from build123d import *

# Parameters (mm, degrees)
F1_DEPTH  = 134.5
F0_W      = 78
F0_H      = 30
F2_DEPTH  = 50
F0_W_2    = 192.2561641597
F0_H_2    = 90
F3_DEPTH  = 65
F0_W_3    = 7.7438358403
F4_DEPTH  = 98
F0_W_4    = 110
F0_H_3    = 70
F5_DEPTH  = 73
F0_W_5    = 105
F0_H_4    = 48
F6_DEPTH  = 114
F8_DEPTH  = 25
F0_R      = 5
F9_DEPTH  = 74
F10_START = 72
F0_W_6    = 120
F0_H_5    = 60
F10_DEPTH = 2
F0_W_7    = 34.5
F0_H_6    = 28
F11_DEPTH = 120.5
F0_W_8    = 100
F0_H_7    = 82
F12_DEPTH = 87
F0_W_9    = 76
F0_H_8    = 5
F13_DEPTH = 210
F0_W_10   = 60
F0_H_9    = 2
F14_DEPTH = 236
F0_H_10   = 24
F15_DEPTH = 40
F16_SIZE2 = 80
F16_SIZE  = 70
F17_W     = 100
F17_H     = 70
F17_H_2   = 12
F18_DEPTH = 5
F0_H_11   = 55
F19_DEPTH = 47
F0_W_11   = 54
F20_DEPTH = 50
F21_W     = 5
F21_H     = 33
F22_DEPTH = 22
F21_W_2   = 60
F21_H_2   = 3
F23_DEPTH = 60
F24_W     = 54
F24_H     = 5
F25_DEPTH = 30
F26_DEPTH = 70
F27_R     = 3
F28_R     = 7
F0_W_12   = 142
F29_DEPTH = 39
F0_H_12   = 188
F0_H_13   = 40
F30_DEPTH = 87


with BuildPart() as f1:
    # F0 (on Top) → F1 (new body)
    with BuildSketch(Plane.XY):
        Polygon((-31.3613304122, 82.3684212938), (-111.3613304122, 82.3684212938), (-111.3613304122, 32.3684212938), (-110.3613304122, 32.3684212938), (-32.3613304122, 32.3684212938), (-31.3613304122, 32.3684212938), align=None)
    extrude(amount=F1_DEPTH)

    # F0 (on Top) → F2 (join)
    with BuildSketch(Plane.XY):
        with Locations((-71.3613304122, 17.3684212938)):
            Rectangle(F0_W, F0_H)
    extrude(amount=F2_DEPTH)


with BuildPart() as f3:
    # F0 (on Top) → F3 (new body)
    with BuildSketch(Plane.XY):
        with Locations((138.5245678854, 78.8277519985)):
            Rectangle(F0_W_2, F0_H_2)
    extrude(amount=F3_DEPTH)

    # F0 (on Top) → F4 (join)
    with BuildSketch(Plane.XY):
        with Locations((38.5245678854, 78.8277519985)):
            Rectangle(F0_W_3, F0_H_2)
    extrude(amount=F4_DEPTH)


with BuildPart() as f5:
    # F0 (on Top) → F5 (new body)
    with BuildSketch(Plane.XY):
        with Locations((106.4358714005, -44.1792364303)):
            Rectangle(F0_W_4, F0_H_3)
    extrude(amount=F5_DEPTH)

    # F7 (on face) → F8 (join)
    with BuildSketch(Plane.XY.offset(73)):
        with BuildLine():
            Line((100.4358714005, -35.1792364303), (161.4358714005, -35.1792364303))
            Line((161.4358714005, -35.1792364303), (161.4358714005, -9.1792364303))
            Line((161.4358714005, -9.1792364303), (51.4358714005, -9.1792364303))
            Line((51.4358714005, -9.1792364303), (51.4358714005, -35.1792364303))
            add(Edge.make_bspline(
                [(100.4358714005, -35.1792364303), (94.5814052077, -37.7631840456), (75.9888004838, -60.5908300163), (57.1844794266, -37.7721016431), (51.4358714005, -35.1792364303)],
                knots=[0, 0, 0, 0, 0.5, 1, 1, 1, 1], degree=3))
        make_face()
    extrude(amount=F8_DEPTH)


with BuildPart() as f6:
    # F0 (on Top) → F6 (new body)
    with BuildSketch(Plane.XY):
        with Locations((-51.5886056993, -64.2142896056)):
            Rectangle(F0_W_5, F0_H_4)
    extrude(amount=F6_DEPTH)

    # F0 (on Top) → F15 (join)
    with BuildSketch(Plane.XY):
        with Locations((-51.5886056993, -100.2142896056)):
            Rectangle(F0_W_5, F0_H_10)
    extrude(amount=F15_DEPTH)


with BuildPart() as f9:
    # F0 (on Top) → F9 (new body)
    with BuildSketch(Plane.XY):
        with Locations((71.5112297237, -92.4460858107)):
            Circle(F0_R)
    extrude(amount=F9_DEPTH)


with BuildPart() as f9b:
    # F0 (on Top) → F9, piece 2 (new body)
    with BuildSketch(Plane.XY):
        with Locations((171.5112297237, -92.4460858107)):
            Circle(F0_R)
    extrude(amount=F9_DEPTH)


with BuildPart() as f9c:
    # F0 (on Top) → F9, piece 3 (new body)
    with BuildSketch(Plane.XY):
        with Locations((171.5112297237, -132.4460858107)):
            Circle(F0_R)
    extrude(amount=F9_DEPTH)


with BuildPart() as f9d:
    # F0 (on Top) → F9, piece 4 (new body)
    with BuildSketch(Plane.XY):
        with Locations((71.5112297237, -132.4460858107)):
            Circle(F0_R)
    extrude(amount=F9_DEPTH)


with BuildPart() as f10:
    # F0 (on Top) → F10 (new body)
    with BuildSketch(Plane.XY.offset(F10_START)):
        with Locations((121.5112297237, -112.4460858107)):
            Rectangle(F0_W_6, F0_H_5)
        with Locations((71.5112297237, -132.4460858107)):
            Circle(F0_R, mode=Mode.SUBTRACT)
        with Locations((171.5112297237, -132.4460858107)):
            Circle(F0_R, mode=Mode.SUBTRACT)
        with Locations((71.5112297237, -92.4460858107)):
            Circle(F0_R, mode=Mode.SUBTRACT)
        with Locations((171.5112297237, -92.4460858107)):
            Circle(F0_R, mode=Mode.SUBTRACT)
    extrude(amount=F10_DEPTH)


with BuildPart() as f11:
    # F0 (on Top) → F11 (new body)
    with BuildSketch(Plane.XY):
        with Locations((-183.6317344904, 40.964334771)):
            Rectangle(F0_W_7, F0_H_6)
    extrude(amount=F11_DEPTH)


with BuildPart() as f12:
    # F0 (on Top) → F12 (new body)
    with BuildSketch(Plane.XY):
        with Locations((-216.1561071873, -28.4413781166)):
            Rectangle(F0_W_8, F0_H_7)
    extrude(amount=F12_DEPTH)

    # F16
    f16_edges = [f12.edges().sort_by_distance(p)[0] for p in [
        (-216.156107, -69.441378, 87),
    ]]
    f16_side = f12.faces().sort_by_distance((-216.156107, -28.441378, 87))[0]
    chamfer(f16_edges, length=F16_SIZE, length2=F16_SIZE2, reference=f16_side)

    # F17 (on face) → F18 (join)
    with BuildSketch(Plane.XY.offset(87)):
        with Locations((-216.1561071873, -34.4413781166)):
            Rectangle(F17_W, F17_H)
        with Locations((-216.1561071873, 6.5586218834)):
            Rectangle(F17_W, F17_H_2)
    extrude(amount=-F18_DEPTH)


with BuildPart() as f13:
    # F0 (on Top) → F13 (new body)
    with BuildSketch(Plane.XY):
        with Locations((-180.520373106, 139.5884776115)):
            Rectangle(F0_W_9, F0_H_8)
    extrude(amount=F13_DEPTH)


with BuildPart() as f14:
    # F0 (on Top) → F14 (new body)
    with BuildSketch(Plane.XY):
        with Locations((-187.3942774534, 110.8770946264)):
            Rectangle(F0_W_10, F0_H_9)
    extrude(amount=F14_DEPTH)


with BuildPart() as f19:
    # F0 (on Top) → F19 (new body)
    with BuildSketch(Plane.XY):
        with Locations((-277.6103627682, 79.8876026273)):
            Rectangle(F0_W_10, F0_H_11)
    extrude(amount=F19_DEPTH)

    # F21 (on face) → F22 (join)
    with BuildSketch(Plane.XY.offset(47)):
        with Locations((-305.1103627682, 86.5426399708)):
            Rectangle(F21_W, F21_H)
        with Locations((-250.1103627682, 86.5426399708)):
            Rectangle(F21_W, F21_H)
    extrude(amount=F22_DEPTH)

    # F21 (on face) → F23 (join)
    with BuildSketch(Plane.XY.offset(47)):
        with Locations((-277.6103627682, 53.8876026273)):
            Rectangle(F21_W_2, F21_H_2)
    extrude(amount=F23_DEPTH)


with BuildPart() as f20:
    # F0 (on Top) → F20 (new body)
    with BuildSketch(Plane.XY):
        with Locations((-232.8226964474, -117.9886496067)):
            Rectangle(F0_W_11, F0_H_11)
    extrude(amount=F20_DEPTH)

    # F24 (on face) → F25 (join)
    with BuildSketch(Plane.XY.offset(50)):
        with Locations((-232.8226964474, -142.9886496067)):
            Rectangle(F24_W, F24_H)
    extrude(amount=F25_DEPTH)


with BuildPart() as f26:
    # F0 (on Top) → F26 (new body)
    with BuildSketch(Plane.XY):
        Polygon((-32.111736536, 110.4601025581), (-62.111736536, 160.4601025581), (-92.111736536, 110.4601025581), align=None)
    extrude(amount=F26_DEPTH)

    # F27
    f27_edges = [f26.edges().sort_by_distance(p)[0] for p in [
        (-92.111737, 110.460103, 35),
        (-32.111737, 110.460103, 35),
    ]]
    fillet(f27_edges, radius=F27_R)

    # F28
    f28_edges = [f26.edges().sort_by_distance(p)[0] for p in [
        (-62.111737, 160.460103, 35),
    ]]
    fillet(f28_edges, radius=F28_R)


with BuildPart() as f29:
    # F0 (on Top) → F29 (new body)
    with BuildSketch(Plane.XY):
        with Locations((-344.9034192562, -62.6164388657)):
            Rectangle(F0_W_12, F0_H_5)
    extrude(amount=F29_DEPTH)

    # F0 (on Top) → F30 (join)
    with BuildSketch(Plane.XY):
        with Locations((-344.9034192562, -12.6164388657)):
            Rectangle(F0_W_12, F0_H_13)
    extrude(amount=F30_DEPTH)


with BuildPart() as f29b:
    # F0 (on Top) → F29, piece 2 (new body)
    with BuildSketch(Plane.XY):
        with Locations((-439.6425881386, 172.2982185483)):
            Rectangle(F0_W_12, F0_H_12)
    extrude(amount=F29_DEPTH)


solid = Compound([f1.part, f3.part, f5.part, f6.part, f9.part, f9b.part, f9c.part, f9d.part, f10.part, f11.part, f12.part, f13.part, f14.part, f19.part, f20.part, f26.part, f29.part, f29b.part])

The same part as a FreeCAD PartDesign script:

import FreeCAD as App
import Part
import Sketcher

V = App.Vector


def edges_at(feature, points):
    """Names of the edges that pass closest to the given points."""
    edges = feature.Shape.Edges
    near = lambda p: min(range(len(edges)), key=lambda i: edges[i].distToShape(Part.Vertex(*p))[0])
    return sorted({f"Edge{near(p) + 1}" for p in points})

doc = App.newDocument("Part")
body = doc.addObject("PartDesign::Body", "Body")

# Sketch on XY plane
sketch1 = body.newObject("Sketcher::SketchObject", "Sketch")
sketch1.AttachmentSupport = (doc.getObject("XY_Plane"), [""])
sketch1.MapMode = "FlatFace"
sketch1.addGeometry(Part.LineSegment(V(-31, 82, 0), V(-111, 82, 0)), False)
sketch1.addGeometry(Part.LineSegment(V(-111, 82, 0), V(-111, 32, 0)), False)
sketch1.addGeometry(Part.LineSegment(V(-111, 32, 0), V(-31, 32, 0)), False)
sketch1.addGeometry(Part.LineSegment(V(-31, 32, 0), V(-31, 82, 0)), False)
sketch1.addConstraint(Sketcher.Constraint("Coincident", 0, 2, 1, 1))
sketch1.addConstraint(Sketcher.Constraint("Coincident", 1, 2, 2, 1))
sketch1.addConstraint(Sketcher.Constraint("Coincident", 2, 2, 3, 1))
sketch1.addConstraint(Sketcher.Constraint("Coincident", 3, 2, 0, 1))
sketch1.addConstraint(Sketcher.Constraint("Horizontal", 0))
sketch1.addConstraint(Sketcher.Constraint("Vertical", 1))
sketch1.addConstraint(Sketcher.Constraint("Horizontal", 2))
sketch1.addConstraint(Sketcher.Constraint("Vertical", 3))
sketch1.addConstraint(Sketcher.Constraint("DistanceX", 0, 2, 0, 1, 80.0))
sketch1.addConstraint(Sketcher.Constraint("DistanceY", 1, 2, 1, 1, 50.0))
sketch1.addConstraint(Sketcher.Constraint("DistanceX", 0, 2, -1, 1, 111.36133))
sketch1.addConstraint(Sketcher.Constraint("DistanceY", -1, 1, 0, 2, 82.368421))
pad1 = body.newObject("PartDesign::Pad", "Pad")
pad1.Profile = sketch1
pad1.Length = 134.5

# Sketch on XY plane
sketch2 = body.newObject("Sketcher::SketchObject", "Sketch001")
sketch2.AttachmentSupport = (doc.getObject("XY_Plane"), [""])
sketch2.MapMode = "FlatFace"
sketch2.addGeometry(Part.LineSegment(V(-110, 32, 0), V(-110, 2, 0)), False)
sketch2.addGeometry(Part.LineSegment(V(-110, 2, 0), V(-32, 2, 0)), False)
sketch2.addGeometry(Part.LineSegment(V(-32, 2, 0), V(-32, 32, 0)), False)
sketch2.addGeometry(Part.LineSegment(V(-32, 32, 0), V(-110, 32, 0)), False)
sketch2.addConstraint(Sketcher.Constraint("Coincident", 0, 2, 1, 1))
sketch2.addConstraint(Sketcher.Constraint("Coincident", 1, 2, 2, 1))
sketch2.addConstraint(Sketcher.Constraint("Coincident", 2, 2, 3, 1))
sketch2.addConstraint(Sketcher.Constraint("Coincident", 3, 2, 0, 1))
sketch2.addConstraint(Sketcher.Constraint("Vertical", 0))
sketch2.addConstraint(Sketcher.Constraint("Horizontal", 1))
sketch2.addConstraint(Sketcher.Constraint("Vertical", 2))
sketch2.addConstraint(Sketcher.Constraint("Horizontal", 3))
sketch2.addConstraint(Sketcher.Constraint("DistanceX", 1, 1, 1, 2, 78.0))
sketch2.addConstraint(Sketcher.Constraint("DistanceY", 0, 2, 0, 1, 30.0))
sketch2.addConstraint(Sketcher.Constraint("DistanceX", 0, 2, -1, 1, 110.36133))
sketch2.addConstraint(Sketcher.Constraint("DistanceY", -1, 1, 0, 2, 2.368421))
pad2 = body.newObject("PartDesign::Pad", "Pad001")
pad2.Profile = sketch2
pad2.Length = 50
body2 = doc.addObject("PartDesign::Body", "Body001")

# Sketch on XY plane
sketch3 = body2.newObject("Sketcher::SketchObject", "Sketch002")
sketch3.AttachmentSupport = (doc.getObject("XY_Plane001"), [""])
sketch3.MapMode = "FlatFace"
sketch3.addGeometry(Part.LineSegment(V(42, 124, 0), V(42, 34, 0)), False)
sketch3.addGeometry(Part.LineSegment(V(42, 34, 0), V(235, 34, 0)), False)
sketch3.addGeometry(Part.LineSegment(V(235, 34, 0), V(235, 124, 0)), False)
sketch3.addGeometry(Part.LineSegment(V(235, 124, 0), V(42, 124, 0)), False)
sketch3.addConstraint(Sketcher.Constraint("Coincident", 0, 2, 1, 1))
sketch3.addConstraint(Sketcher.Constraint("Coincident", 1, 2, 2, 1))
sketch3.addConstraint(Sketcher.Constraint("Coincident", 2, 2, 3, 1))
sketch3.addConstraint(Sketcher.Constraint("Coincident", 3, 2, 0, 1))
sketch3.addConstraint(Sketcher.Constraint("Vertical", 0))
sketch3.addConstraint(Sketcher.Constraint("Horizontal", 1))
sketch3.addConstraint(Sketcher.Constraint("Vertical", 2))
sketch3.addConstraint(Sketcher.Constraint("Horizontal", 3))
sketch3.addConstraint(Sketcher.Constraint("DistanceY", 0, 2, 0, 1, 90.0))
sketch3.addConstraint(Sketcher.Constraint("DistanceX", 1, 1, 1, 2, 192.256164))
sketch3.addConstraint(Sketcher.Constraint("DistanceY", -1, 1, 0, 2, 33.827752))
sketch3.addConstraint(Sketcher.Constraint("DistanceX", -1, 1, 1, 2, 234.65265))
pad3 = body2.newObject("PartDesign::Pad", "Pad002")
pad3.Profile = sketch3
pad3.Length = 65

# Sketch on XY plane
sketch4 = body2.newObject("Sketcher::SketchObject", "Sketch003")
sketch4.AttachmentSupport = (doc.getObject("XY_Plane001"), [""])
sketch4.MapMode = "FlatFace"
sketch4.addGeometry(Part.LineSegment(V(35, 124, 0), V(35, 34, 0)), False)
sketch4.addGeometry(Part.LineSegment(V(35, 34, 0), V(42, 34, 0)), False)
sketch4.addGeometry(Part.LineSegment(V(42, 34, 0), V(42, 124, 0)), False)
sketch4.addGeometry(Part.LineSegment(V(42, 124, 0), V(35, 124, 0)), False)
sketch4.addConstraint(Sketcher.Constraint("Coincident", 0, 2, 1, 1))
sketch4.addConstraint(Sketcher.Constraint("Coincident", 1, 2, 2, 1))
sketch4.addConstraint(Sketcher.Constraint("Coincident", 2, 2, 3, 1))
sketch4.addConstraint(Sketcher.Constraint("Coincident", 3, 2, 0, 1))
sketch4.addConstraint(Sketcher.Constraint("Vertical", 0))
sketch4.addConstraint(Sketcher.Constraint("Horizontal", 1))
sketch4.addConstraint(Sketcher.Constraint("Vertical", 2))
sketch4.addConstraint(Sketcher.Constraint("Horizontal", 3))
sketch4.addConstraint(Sketcher.Constraint("DistanceY", 0, 2, 0, 1, 90.0))
sketch4.addConstraint(Sketcher.Constraint("DistanceX", 1, 1, 1, 2, 7.743836))
sketch4.addConstraint(Sketcher.Constraint("DistanceX", -1, 1, 0, 2, 34.65265))
sketch4.addConstraint(Sketcher.Constraint("DistanceY", -1, 1, 0, 2, 33.827752))
pad4 = body2.newObject("PartDesign::Pad", "Pad003")
pad4.Profile = sketch4
pad4.Length = 98
body3 = doc.addObject("PartDesign::Body", "Body002")

# Sketch on XY plane
sketch5 = body3.newObject("Sketcher::SketchObject", "Sketch004")
sketch5.AttachmentSupport = (doc.getObject("XY_Plane002"), [""])
sketch5.MapMode = "FlatFace"
sketch5.addGeometry(Part.LineSegment(V(51, -9, 0), V(51, -79, 0)), False)
sketch5.addGeometry(Part.LineSegment(V(51, -79, 0), V(161, -79, 0)), False)
sketch5.addGeometry(Part.LineSegment(V(161, -79, 0), V(161, -9, 0)), False)
sketch5.addGeometry(Part.LineSegment(V(161, -9, 0), V(51, -9, 0)), False)
sketch5.addConstraint(Sketcher.Constraint("Coincident", 0, 2, 1, 1))
sketch5.addConstraint(Sketcher.Constraint("Coincident", 1, 2, 2, 1))
sketch5.addConstraint(Sketcher.Constraint("Coincident", 2, 2, 3, 1))
sketch5.addConstraint(Sketcher.Constraint("Coincident", 3, 2, 0, 1))
sketch5.addConstraint(Sketcher.Constraint("Vertical", 0))
sketch5.addConstraint(Sketcher.Constraint("Horizontal", 1))
sketch5.addConstraint(Sketcher.Constraint("Vertical", 2))
sketch5.addConstraint(Sketcher.Constraint("Horizontal", 3))
sketch5.addConstraint(Sketcher.Constraint("DistanceX", 1, 1, 1, 2, 110.0))
sketch5.addConstraint(Sketcher.Constraint("DistanceY", 0, 2, 0, 1, 70.0))
sketch5.addConstraint(Sketcher.Constraint("DistanceX", -1, 1, 0, 2, 51.435871))
sketch5.addConstraint(Sketcher.Constraint("DistanceY", 0, 2, -1, 1, 79.179236))
pad5 = body3.newObject("PartDesign::Pad", "Pad004")
pad5.Profile = sketch5
pad5.Length = 73

# Sketch on XY plane
sketch6 = body3.newObject("Sketcher::SketchObject", "Sketch005")
sketch6.AttachmentSupport = (doc.getObject("XY_Plane002"), [""])
sketch6.MapMode = "FlatFace"
sketch6.AttachmentOffset = App.Placement(V(0, 0, 73), App.Rotation())
sketch6.addGeometry(Part.LineSegment(V(100.435871, -35.179236, 0), V(161.435871, -35.179236, 0)), False)
sketch6.addGeometry(Part.LineSegment(V(161.435871, -35.179236, 0), V(161.435871, -9.179236, 0)), False)
sketch6.addGeometry(Part.LineSegment(V(161.435871, -9.179236, 0), V(51.435871, -9.179236, 0)), False)
sketch6.addGeometry(Part.LineSegment(V(51.435871, -9.179236, 0), V(51.435871, -35.179236, 0)), False)
sketch6.addGeometry(Part.BSplineCurve([V(100.435871, -35.179236, 0), V(94.581405, -37.763184, 0), V(75.9888, -60.59083, 0), V(57.184479, -37.772102, 0), V(51.435871, -35.179236, 0)], [4, 1, 4], [0, 0.5, 1], False, 3, [1, 1, 1, 1, 1], False), False)
sketch6.addConstraint(Sketcher.Constraint("Block", 4))
sketch6.addConstraint(Sketcher.Constraint("Coincident", 0, 2, 1, 1))
sketch6.addConstraint(Sketcher.Constraint("Coincident", 1, 2, 2, 1))
sketch6.addConstraint(Sketcher.Constraint("Coincident", 2, 2, 3, 1))
sketch6.addConstraint(Sketcher.Constraint("Coincident", 3, 2, 4, 2))
sketch6.addConstraint(Sketcher.Constraint("Coincident", 4, 1, 0, 1))
sketch6.addConstraint(Sketcher.Constraint("Horizontal", 0))
sketch6.addConstraint(Sketcher.Constraint("Vertical", 1))
sketch6.addConstraint(Sketcher.Constraint("Horizontal", 2))
sketch6.addConstraint(Sketcher.Constraint("Vertical", 3))
sketch6.addConstraint(Sketcher.Constraint("DistanceX", 0, 1, 0, 2, 61.0))
sketch6.addConstraint(Sketcher.Constraint("DistanceY", 1, 1, 1, 2, 26.0))
pad6 = body3.newObject("PartDesign::Pad", "Pad005")
pad6.Profile = sketch6
pad6.Length = 25
body4 = doc.addObject("PartDesign::Body", "Body003")

# Sketch on XY plane
sketch7 = body4.newObject("Sketcher::SketchObject", "Sketch006")
sketch7.AttachmentSupport = (doc.getObject("XY_Plane003"), [""])
sketch7.MapMode = "FlatFace"
sketch7.addGeometry(Part.LineSegment(V(-104, -40, 0), V(-104, -88, 0)), False)
sketch7.addGeometry(Part.LineSegment(V(-104, -88, 0), V(1, -88, 0)), False)
sketch7.addGeometry(Part.LineSegment(V(1, -88, 0), V(1, -40, 0)), False)
sketch7.addGeometry(Part.LineSegment(V(1, -40, 0), V(-104, -40, 0)), False)
sketch7.addConstraint(Sketcher.Constraint("Coincident", 0, 2, 1, 1))
sketch7.addConstraint(Sketcher.Constraint("Coincident", 1, 2, 2, 1))
sketch7.addConstraint(Sketcher.Constraint("Coincident", 2, 2, 3, 1))
sketch7.addConstraint(Sketcher.Constraint("Coincident", 3, 2, 0, 1))
sketch7.addConstraint(Sketcher.Constraint("Vertical", 0))
sketch7.addConstraint(Sketcher.Constraint("Horizontal", 1))
sketch7.addConstraint(Sketcher.Constraint("Vertical", 2))
sketch7.addConstraint(Sketcher.Constraint("Horizontal", 3))
sketch7.addConstraint(Sketcher.Constraint("DistanceX", 1, 1, 1, 2, 105.0))
sketch7.addConstraint(Sketcher.Constraint("DistanceY", 0, 2, 0, 1, 48.0))
sketch7.addConstraint(Sketcher.Constraint("DistanceY", 0, 2, -1, 1, 88.21429))
sketch7.addConstraint(Sketcher.Constraint("DistanceX", 0, 2, -1, 1, 104.088606))
pad7 = body4.newObject("PartDesign::Pad", "Pad006")
pad7.Profile = sketch7
pad7.Length = 114

# Sketch on XY plane
sketch8 = body4.newObject("Sketcher::SketchObject", "Sketch007")
sketch8.AttachmentSupport = (doc.getObject("XY_Plane003"), [""])
sketch8.MapMode = "FlatFace"
sketch8.addGeometry(Part.LineSegment(V(-104, -88, 0), V(-104, -112, 0)), False)
sketch8.addGeometry(Part.LineSegment(V(-104, -112, 0), V(1, -112, 0)), False)
sketch8.addGeometry(Part.LineSegment(V(1, -112, 0), V(1, -88, 0)), False)
sketch8.addGeometry(Part.LineSegment(V(1, -88, 0), V(-104, -88, 0)), False)
sketch8.addConstraint(Sketcher.Constraint("Coincident", 0, 2, 1, 1))
sketch8.addConstraint(Sketcher.Constraint("Coincident", 1, 2, 2, 1))
sketch8.addConstraint(Sketcher.Constraint("Coincident", 2, 2, 3, 1))
sketch8.addConstraint(Sketcher.Constraint("Coincident", 3, 2, 0, 1))
sketch8.addConstraint(Sketcher.Constraint("Vertical", 0))
sketch8.addConstraint(Sketcher.Constraint("Horizontal", 1))
sketch8.addConstraint(Sketcher.Constraint("Vertical", 2))
sketch8.addConstraint(Sketcher.Constraint("Horizontal", 3))
sketch8.addConstraint(Sketcher.Constraint("DistanceX", 1, 1, 1, 2, 105.0))
sketch8.addConstraint(Sketcher.Constraint("DistanceY", 0, 2, 0, 1, 24.0))
sketch8.addConstraint(Sketcher.Constraint("DistanceY", 0, 2, -1, 1, 112.21429))
sketch8.addConstraint(Sketcher.Constraint("DistanceX", 0, 2, -1, 1, 104.088606))
pad8 = body4.newObject("PartDesign::Pad", "Pad007")
pad8.Profile = sketch8
pad8.Length = 40
body5 = doc.addObject("PartDesign::Body", "Body004")

# Sketch on XY plane
sketch9 = body5.newObject("Sketcher::SketchObject", "Sketch008")
sketch9.AttachmentSupport = (doc.getObject("XY_Plane004"), [""])
sketch9.MapMode = "FlatFace"
sketch9.addGeometry(Part.Circle(V(72, -92, 0), V(0, 0, 1), 5), False)
sketch9.addConstraint(Sketcher.Constraint("Diameter", 0, 10.0))
sketch9.addConstraint(Sketcher.Constraint("DistanceX", -1, 1, 0, 3, 71.51123))
sketch9.addConstraint(Sketcher.Constraint("DistanceY", 0, 3, -1, 1, 92.446086))
pad9 = body5.newObject("PartDesign::Pad", "Pad008")
pad9.Profile = sketch9
pad9.Length = 74
body6 = doc.addObject("PartDesign::Body", "Body005")

# Sketch on XY plane
sketch10 = body6.newObject("Sketcher::SketchObject", "Sketch009")
sketch10.AttachmentSupport = (doc.getObject("XY_Plane005"), [""])
sketch10.MapMode = "FlatFace"
sketch10.addGeometry(Part.Circle(V(172, -92, 0), V(0, 0, 1), 5), False)
sketch10.addConstraint(Sketcher.Constraint("Diameter", 0, 10.0))
sketch10.addConstraint(Sketcher.Constraint("DistanceX", -1, 1, 0, 3, 171.51123))
sketch10.addConstraint(Sketcher.Constraint("DistanceY", 0, 3, -1, 1, 92.446086))
pad10 = body6.newObject("PartDesign::Pad", "Pad009")
pad10.Profile = sketch10
pad10.Length = 74
body7 = doc.addObject("PartDesign::Body", "Body006")

# Sketch on XY plane
sketch11 = body7.newObject("Sketcher::SketchObject", "Sketch010")
sketch11.AttachmentSupport = (doc.getObject("XY_Plane006"), [""])
sketch11.MapMode = "FlatFace"
sketch11.addGeometry(Part.Circle(V(172, -132, 0), V(0, 0, 1), 5), False)
sketch11.addConstraint(Sketcher.Constraint("Diameter", 0, 10.0))
sketch11.addConstraint(Sketcher.Constraint("DistanceX", -1, 1, 0, 3, 171.51123))
sketch11.addConstraint(Sketcher.Constraint("DistanceY", 0, 3, -1, 1, 132.446086))
pad11 = body7.newObject("PartDesign::Pad", "Pad010")
pad11.Profile = sketch11
pad11.Length = 74
body8 = doc.addObject("PartDesign::Body", "Body007")

# Sketch on XY plane
sketch12 = body8.newObject("Sketcher::SketchObject", "Sketch011")
sketch12.AttachmentSupport = (doc.getObject("XY_Plane007"), [""])
sketch12.MapMode = "FlatFace"
sketch12.addGeometry(Part.Circle(V(72, -132, 0), V(0, 0, 1), 5), False)
sketch12.addConstraint(Sketcher.Constraint("Diameter", 0, 10.0))
sketch12.addConstraint(Sketcher.Constraint("DistanceX", -1, 1, 0, 3, 71.51123))
sketch12.addConstraint(Sketcher.Constraint("DistanceY", 0, 3, -1, 1, 132.446086))
pad12 = body8.newObject("PartDesign::Pad", "Pad011")
pad12.Profile = sketch12
pad12.Length = 74
body9 = doc.addObject("PartDesign::Body", "Body008")

# Sketch on XY plane
sketch13 = body9.newObject("Sketcher::SketchObject", "Sketch012")
sketch13.AttachmentSupport = (doc.getObject("XY_Plane008"), [""])
sketch13.MapMode = "FlatFace"
sketch13.AttachmentOffset = App.Placement(V(0, 0, 72), App.Rotation())
sketch13.addGeometry(Part.LineSegment(V(62, -82, 0), V(62, -142, 0)), False)
sketch13.addGeometry(Part.LineSegment(V(62, -142, 0), V(182, -142, 0)), False)
sketch13.addGeometry(Part.LineSegment(V(182, -142, 0), V(182, -82, 0)), False)
sketch13.addGeometry(Part.LineSegment(V(182, -82, 0), V(62, -82, 0)), False)
sketch13.addGeometry(Part.Circle(V(72, -132, 0), V(0, 0, 1), 5), False)
sketch13.addGeometry(Part.Circle(V(172, -132, 0), V(0, 0, 1), 5), False)
sketch13.addGeometry(Part.Circle(V(72, -92, 0), V(0, 0, 1), 5), False)
sketch13.addGeometry(Part.Circle(V(172, -92, 0), V(0, 0, 1), 5), False)
sketch13.addConstraint(Sketcher.Constraint("Coincident", 0, 2, 1, 1))
sketch13.addConstraint(Sketcher.Constraint("Coincident", 1, 2, 2, 1))
sketch13.addConstraint(Sketcher.Constraint("Coincident", 2, 2, 3, 1))
sketch13.addConstraint(Sketcher.Constraint("Coincident", 3, 2, 0, 1))
sketch13.addConstraint(Sketcher.Constraint("Vertical", 0))
sketch13.addConstraint(Sketcher.Constraint("Horizontal", 1))
sketch13.addConstraint(Sketcher.Constraint("Vertical", 2))
sketch13.addConstraint(Sketcher.Constraint("Horizontal", 3))
sketch13.addConstraint(Sketcher.Constraint("Equal", 4, 5))
sketch13.addConstraint(Sketcher.Constraint("Equal", 5, 6))
sketch13.addConstraint(Sketcher.Constraint("Equal", 6, 7))
sketch13.addConstraint(Sketcher.Constraint("Horizontal", 4, 3, 5, 3))
sketch13.addConstraint(Sketcher.Constraint("Horizontal", 6, 3, 7, 3))
sketch13.addConstraint(Sketcher.Constraint("Vertical", 4, 3, 6, 3))
sketch13.addConstraint(Sketcher.Constraint("Vertical", 5, 3, 7, 3))
sketch13.addConstraint(Sketcher.Constraint("Diameter", 4, 10.0))
sketch13.addConstraint(Sketcher.Constraint("DistanceX", 1, 1, 1, 2, 120.0))
sketch13.addConstraint(Sketcher.Constraint("DistanceY", 0, 2, 0, 1, 60.0))
sketch13.addConstraint(Sketcher.Constraint("DistanceX", 4, 3, 5, 3, 100.0))
sketch13.addConstraint(Sketcher.Constraint("DistanceY", 4, 3, 6, 3, 40.0))
sketch13.addConstraint(Sketcher.Constraint("DistanceX", 0, 2, 4, 3, 10.0))
sketch13.addConstraint(Sketcher.Constraint("DistanceY", 0, 2, 4, 3, 10.0))
sketch13.addConstraint(Sketcher.Constraint("DistanceX", -1, 1, 4, 3, 71.51123))
sketch13.addConstraint(Sketcher.Constraint("DistanceY", 4, 3, -1, 1, 132.446086))
pad13 = body9.newObject("PartDesign::Pad", "Pad012")
pad13.Profile = sketch13
pad13.Length = 2
body10 = doc.addObject("PartDesign::Body", "Body009")

# Sketch on XY plane
sketch14 = body10.newObject("Sketcher::SketchObject", "Sketch013")
sketch14.AttachmentSupport = (doc.getObject("XY_Plane009"), [""])
sketch14.MapMode = "FlatFace"
sketch14.addGeometry(Part.LineSegment(V(-201, 55, 0), V(-201, 27, 0)), False)
sketch14.addGeometry(Part.LineSegment(V(-201, 27, 0), V(-166, 27, 0)), False)
sketch14.addGeometry(Part.LineSegment(V(-166, 27, 0), V(-166, 55, 0)), False)
sketch14.addGeometry(Part.LineSegment(V(-166, 55, 0), V(-201, 55, 0)), False)
sketch14.addConstraint(Sketcher.Constraint("Coincident", 0, 2, 1, 1))
sketch14.addConstraint(Sketcher.Constraint("Coincident", 1, 2, 2, 1))
sketch14.addConstraint(Sketcher.Constraint("Coincident", 2, 2, 3, 1))
sketch14.addConstraint(Sketcher.Constraint("Coincident", 3, 2, 0, 1))
sketch14.addConstraint(Sketcher.Constraint("Vertical", 0))
sketch14.addConstraint(Sketcher.Constraint("Horizontal", 1))
sketch14.addConstraint(Sketcher.Constraint("Vertical", 2))
sketch14.addConstraint(Sketcher.Constraint("Horizontal", 3))
sketch14.addConstraint(Sketcher.Constraint("DistanceY", 0, 2, 0, 1, 28.0))
sketch14.addConstraint(Sketcher.Constraint("DistanceX", 1, 1, 1, 2, 34.5))
sketch14.addConstraint(Sketcher.Constraint("DistanceX", 0, 2, -1, 1, 200.881734))
sketch14.addConstraint(Sketcher.Constraint("DistanceY", -1, 1, 0, 2, 26.964335))
pad14 = body10.newObject("PartDesign::Pad", "Pad013")
pad14.Profile = sketch14
pad14.Length = 120.5
body11 = doc.addObject("PartDesign::Body", "Body010")

# Sketch on XY plane
sketch15 = body11.newObject("Sketcher::SketchObject", "Sketch014")
sketch15.AttachmentSupport = (doc.getObject("XY_Plane010"), [""])
sketch15.MapMode = "FlatFace"
sketch15.addGeometry(Part.LineSegment(V(-266, 13, 0), V(-266, -69, 0)), False)
sketch15.addGeometry(Part.LineSegment(V(-266, -69, 0), V(-166, -69, 0)), False)
sketch15.addGeometry(Part.LineSegment(V(-166, -69, 0), V(-166, 13, 0)), False)
sketch15.addGeometry(Part.LineSegment(V(-166, 13, 0), V(-266, 13, 0)), False)
sketch15.addConstraint(Sketcher.Constraint("Coincident", 0, 2, 1, 1))
sketch15.addConstraint(Sketcher.Constraint("Coincident", 1, 2, 2, 1))
sketch15.addConstraint(Sketcher.Constraint("Coincident", 2, 2, 3, 1))
sketch15.addConstraint(Sketcher.Constraint("Coincident", 3, 2, 0, 1))
sketch15.addConstraint(Sketcher.Constraint("Vertical", 0))
sketch15.addConstraint(Sketcher.Constraint("Horizontal", 1))
sketch15.addConstraint(Sketcher.Constraint("Vertical", 2))
sketch15.addConstraint(Sketcher.Constraint("Horizontal", 3))
sketch15.addConstraint(Sketcher.Constraint("DistanceX", 1, 1, 1, 2, 100.0))
sketch15.addConstraint(Sketcher.Constraint("DistanceY", 0, 2, 0, 1, 82.0))
sketch15.addConstraint(Sketcher.Constraint("DistanceY", 0, 2, -1, 1, 69.441378))
sketch15.addConstraint(Sketcher.Constraint("DistanceX", 0, 2, -1, 1, 266.156107))
pad15 = body11.newObject("PartDesign::Pad", "Pad014")
pad15.Profile = sketch15
pad15.Length = 87
doc.recompute()

chamfer = body11.newObject("PartDesign::Chamfer", "Chamfer")
chamfer.Base = (pad15, edges_at(pad15, [(-216.156, -69.441, 87)]))
chamfer.ChamferType = "Two distances"
chamfer.Size = 70
chamfer.Size2 = 80
chamfer.FlipDirection = True

# Sketch on XY plane
sketch16 = body11.newObject("Sketcher::SketchObject", "Sketch015")
sketch16.AttachmentSupport = (doc.getObject("XY_Plane010"), [""])
sketch16.MapMode = "FlatFace"
sketch16.AttachmentOffset = App.Placement(V(0, 0, 87), App.Rotation())
sketch16.addGeometry(Part.LineSegment(V(-266, -69, 0), V(-166, -69, 0)), False)
sketch16.addGeometry(Part.LineSegment(V(-166, -69, 0), V(-166, 13, 0)), False)
sketch16.addGeometry(Part.LineSegment(V(-166, 13, 0), V(-266, 13, 0)), False)
sketch16.addGeometry(Part.LineSegment(V(-266, 13, 0), V(-266, -69, 0)), False)
sketch16.addConstraint(Sketcher.Constraint("Coincident", 0, 2, 1, 1))
sketch16.addConstraint(Sketcher.Constraint("Coincident", 1, 2, 2, 1))
sketch16.addConstraint(Sketcher.Constraint("Coincident", 2, 2, 3, 1))
sketch16.addConstraint(Sketcher.Constraint("Coincident", 3, 2, 0, 1))
sketch16.addConstraint(Sketcher.Constraint("Horizontal", 0))
sketch16.addConstraint(Sketcher.Constraint("Vertical", 1))
sketch16.addConstraint(Sketcher.Constraint("Horizontal", 2))
sketch16.addConstraint(Sketcher.Constraint("Vertical", 3))
sketch16.addConstraint(Sketcher.Constraint("DistanceX", 0, 1, 0, 2, 100.0))
sketch16.addConstraint(Sketcher.Constraint("DistanceY", 1, 1, 1, 2, 82.0))
sketch16.addConstraint(Sketcher.Constraint("DistanceY", 0, 2, -1, 1, 69.441378))
sketch16.addConstraint(Sketcher.Constraint("DistanceX", 0, 2, -1, 1, 166.156107))
pad16 = body11.newObject("PartDesign::Pad", "Pad015")
pad16.Profile = sketch16
pad16.Length = 5
pad16.Reversed = True
body12 = doc.addObject("PartDesign::Body", "Body011")

# Sketch on XY plane
sketch17 = body12.newObject("Sketcher::SketchObject", "Sketch016")
sketch17.AttachmentSupport = (doc.getObject("XY_Plane011"), [""])
sketch17.MapMode = "FlatFace"
sketch17.addGeometry(Part.LineSegment(V(-219, 142, 0), V(-219, 137, 0)), False)
sketch17.addGeometry(Part.LineSegment(V(-219, 137, 0), V(-143, 137, 0)), False)
sketch17.addGeometry(Part.LineSegment(V(-143, 137, 0), V(-143, 142, 0)), False)
sketch17.addGeometry(Part.LineSegment(V(-143, 142, 0), V(-219, 142, 0)), False)
sketch17.addConstraint(Sketcher.Constraint("Coincident", 0, 2, 1, 1))
sketch17.addConstraint(Sketcher.Constraint("Coincident", 1, 2, 2, 1))
sketch17.addConstraint(Sketcher.Constraint("Coincident", 2, 2, 3, 1))
sketch17.addConstraint(Sketcher.Constraint("Coincident", 3, 2, 0, 1))
sketch17.addConstraint(Sketcher.Constraint("Vertical", 0))
sketch17.addConstraint(Sketcher.Constraint("Horizontal", 1))
sketch17.addConstraint(Sketcher.Constraint("Vertical", 2))
sketch17.addConstraint(Sketcher.Constraint("Horizontal", 3))
sketch17.addConstraint(Sketcher.Constraint("DistanceX", 1, 1, 1, 2, 76.0))
sketch17.addConstraint(Sketcher.Constraint("DistanceY", 0, 2, 0, 1, 5.0))
sketch17.addConstraint(Sketcher.Constraint("DistanceX", 0, 2, -1, 1, 218.520373))
sketch17.addConstraint(Sketcher.Constraint("DistanceY", -1, 1, 0, 2, 137.088478))
pad17 = body12.newObject("PartDesign::Pad", "Pad016")
pad17.Profile = sketch17
pad17.Length = 210
body13 = doc.addObject("PartDesign::Body", "Body012")

# Sketch on XY plane
sketch18 = body13.newObject("Sketcher::SketchObject", "Sketch017")
sketch18.AttachmentSupport = (doc.getObject("XY_Plane012"), [""])
sketch18.MapMode = "FlatFace"
sketch18.addGeometry(Part.LineSegment(V(-217.4, 111.9, 0), V(-217.4, 109.9, 0)), False)
sketch18.addGeometry(Part.LineSegment(V(-217.4, 109.9, 0), V(-157.4, 109.9, 0)), False)
sketch18.addGeometry(Part.LineSegment(V(-157.4, 109.9, 0), V(-157.4, 111.9, 0)), False)
sketch18.addGeometry(Part.LineSegment(V(-157.4, 111.9, 0), V(-217.4, 111.9, 0)), False)
sketch18.addConstraint(Sketcher.Constraint("Coincident", 0, 2, 1, 1))
sketch18.addConstraint(Sketcher.Constraint("Coincident", 1, 2, 2, 1))
sketch18.addConstraint(Sketcher.Constraint("Coincident", 2, 2, 3, 1))
sketch18.addConstraint(Sketcher.Constraint("Coincident", 3, 2, 0, 1))
sketch18.addConstraint(Sketcher.Constraint("Vertical", 0))
sketch18.addConstraint(Sketcher.Constraint("Horizontal", 1))
sketch18.addConstraint(Sketcher.Constraint("Vertical", 2))
sketch18.addConstraint(Sketcher.Constraint("Horizontal", 3))
sketch18.addConstraint(Sketcher.Constraint("DistanceX", 1, 1, 1, 2, 60.0))
sketch18.addConstraint(Sketcher.Constraint("DistanceY", 0, 2, 0, 1, 2.0))
sketch18.addConstraint(Sketcher.Constraint("DistanceX", 0, 2, -1, 1, 217.394277))
sketch18.addConstraint(Sketcher.Constraint("DistanceY", -1, 1, 0, 2, 109.877095))
pad18 = body13.newObject("PartDesign::Pad", "Pad017")
pad18.Profile = sketch18
pad18.Length = 236
body14 = doc.addObject("PartDesign::Body", "Body013")

# Sketch on XY plane
sketch19 = body14.newObject("Sketcher::SketchObject", "Sketch018")
sketch19.AttachmentSupport = (doc.getObject("XY_Plane013"), [""])
sketch19.MapMode = "FlatFace"
sketch19.addGeometry(Part.LineSegment(V(-308, 107, 0), V(-308, 52, 0)), False)
sketch19.addGeometry(Part.LineSegment(V(-308, 52, 0), V(-248, 52, 0)), False)
sketch19.addGeometry(Part.LineSegment(V(-248, 52, 0), V(-248, 107, 0)), False)
sketch19.addGeometry(Part.LineSegment(V(-248, 107, 0), V(-308, 107, 0)), False)
sketch19.addConstraint(Sketcher.Constraint("Coincident", 0, 2, 1, 1))
sketch19.addConstraint(Sketcher.Constraint("Coincident", 1, 2, 2, 1))
sketch19.addConstraint(Sketcher.Constraint("Coincident", 2, 2, 3, 1))
sketch19.addConstraint(Sketcher.Constraint("Coincident", 3, 2, 0, 1))
sketch19.addConstraint(Sketcher.Constraint("Vertical", 0))
sketch19.addConstraint(Sketcher.Constraint("Horizontal", 1))
sketch19.addConstraint(Sketcher.Constraint("Vertical", 2))
sketch19.addConstraint(Sketcher.Constraint("Horizontal", 3))
sketch19.addConstraint(Sketcher.Constraint("DistanceX", 1, 1, 1, 2, 60.0))
sketch19.addConstraint(Sketcher.Constraint("DistanceY", 0, 2, 0, 1, 55.0))
sketch19.addConstraint(Sketcher.Constraint("DistanceX", 0, 2, -1, 1, 307.610363))
sketch19.addConstraint(Sketcher.Constraint("DistanceY", -1, 1, 0, 2, 52.387603))
pad19 = body14.newObject("PartDesign::Pad", "Pad018")
pad19.Profile = sketch19
pad19.Length = 47

# Sketch on XY plane
sketch20 = body14.newObject("Sketcher::SketchObject", "Sketch019")
sketch20.AttachmentSupport = (doc.getObject("XY_Plane013"), [""])
sketch20.MapMode = "FlatFace"
sketch20.AttachmentOffset = App.Placement(V(0, 0, 47), App.Rotation())
sketch20.addGeometry(Part.LineSegment(V(-308, 103, 0), V(-308, 70, 0)), False)
sketch20.addGeometry(Part.LineSegment(V(-308, 70, 0), V(-303, 70, 0)), False)
sketch20.addGeometry(Part.LineSegment(V(-303, 70, 0), V(-303, 103, 0)), False)
sketch20.addGeometry(Part.LineSegment(V(-303, 103, 0), V(-308, 103, 0)), False)
sketch20.addGeometry(Part.LineSegment(V(-253, 103, 0), V(-253, 70, 0)), False)
sketch20.addGeometry(Part.LineSegment(V(-253, 70, 0), V(-248, 70, 0)), False)
sketch20.addGeometry(Part.LineSegment(V(-248, 70, 0), V(-248, 103, 0)), False)
sketch20.addGeometry(Part.LineSegment(V(-248, 103, 0), V(-253, 103, 0)), False)
sketch20.addConstraint(Sketcher.Constraint("Coincident", 0, 2, 1, 1))
sketch20.addConstraint(Sketcher.Constraint("Coincident", 1, 2, 2, 1))
sketch20.addConstraint(Sketcher.Constraint("Coincident", 2, 2, 3, 1))
sketch20.addConstraint(Sketcher.Constraint("Coincident", 3, 2, 0, 1))
sketch20.addConstraint(Sketcher.Constraint("Coincident", 4, 2, 5, 1))
sketch20.addConstraint(Sketcher.Constraint("Coincident", 5, 2, 6, 1))
sketch20.addConstraint(Sketcher.Constraint("Coincident", 6, 2, 7, 1))
sketch20.addConstraint(Sketcher.Constraint("Coincident", 7, 2, 4, 1))
sketch20.addConstraint(Sketcher.Constraint("Vertical", 0))
sketch20.addConstraint(Sketcher.Constraint("Horizontal", 1))
sketch20.addConstraint(Sketcher.Constraint("Vertical", 2))
sketch20.addConstraint(Sketcher.Constraint("Horizontal", 3))
sketch20.addConstraint(Sketcher.Constraint("Vertical", 4))
sketch20.addConstraint(Sketcher.Constraint("Horizontal", 5))
sketch20.addConstraint(Sketcher.Constraint("Vertical", 6))
sketch20.addConstraint(Sketcher.Constraint("Horizontal", 7))
sketch20.addConstraint(Sketcher.Constraint("Horizontal", 1, 2, 4, 2))
sketch20.addConstraint(Sketcher.Constraint("Horizontal", 3, 2, 6, 2))
sketch20.addConstraint(Sketcher.Constraint("Equal", 3, 5))
sketch20.addConstraint(Sketcher.Constraint("DistanceX", 1, 1, 1, 2, 5.0))
sketch20.addConstraint(Sketcher.Constraint("DistanceY", 0, 2, 0, 1, 33.0))
sketch20.addConstraint(Sketcher.Constraint("DistanceX", 1, 2, 4, 2, 50.0))
sketch20.addConstraint(Sketcher.Constraint("DistanceY", -1, 1, 0, 2, 70.04264))
sketch20.addConstraint(Sketcher.Constraint("DistanceX", 0, 2, -1, 1, 307.610363))
pad20 = body14.newObject("PartDesign::Pad", "Pad019")
pad20.Profile = sketch20
pad20.Length = 22

# Sketch on XY plane
sketch21 = body14.newObject("Sketcher::SketchObject", "Sketch020")
sketch21.AttachmentSupport = (doc.getObject("XY_Plane013"), [""])
sketch21.MapMode = "FlatFace"
sketch21.AttachmentOffset = App.Placement(V(0, 0, 47), App.Rotation())
sketch21.addGeometry(Part.LineSegment(V(-307.6, 55.4, 0), V(-307.6, 52.4, 0)), False)
sketch21.addGeometry(Part.LineSegment(V(-307.6, 52.4, 0), V(-247.6, 52.4, 0)), False)
sketch21.addGeometry(Part.LineSegment(V(-247.6, 52.4, 0), V(-247.6, 55.4, 0)), False)
sketch21.addGeometry(Part.LineSegment(V(-247.6, 55.4, 0), V(-307.6, 55.4, 0)), False)
sketch21.addConstraint(Sketcher.Constraint("Coincident", 0, 2, 1, 1))
sketch21.addConstraint(Sketcher.Constraint("Coincident", 1, 2, 2, 1))
sketch21.addConstraint(Sketcher.Constraint("Coincident", 2, 2, 3, 1))
sketch21.addConstraint(Sketcher.Constraint("Coincident", 3, 2, 0, 1))
sketch21.addConstraint(Sketcher.Constraint("Vertical", 0))
sketch21.addConstraint(Sketcher.Constraint("Horizontal", 1))
sketch21.addConstraint(Sketcher.Constraint("Vertical", 2))
sketch21.addConstraint(Sketcher.Constraint("Horizontal", 3))
sketch21.addConstraint(Sketcher.Constraint("DistanceX", 1, 1, 1, 2, 60.0))
sketch21.addConstraint(Sketcher.Constraint("DistanceY", 0, 2, 0, 1, 3.0))
sketch21.addConstraint(Sketcher.Constraint("DistanceX", 0, 2, -1, 1, 307.610363))
sketch21.addConstraint(Sketcher.Constraint("DistanceY", -1, 1, 0, 2, 52.387603))
pad21 = body14.newObject("PartDesign::Pad", "Pad020")
pad21.Profile = sketch21
pad21.Length = 60
body15 = doc.addObject("PartDesign::Body", "Body014")

# Sketch on XY plane
sketch22 = body15.newObject("Sketcher::SketchObject", "Sketch021")
sketch22.AttachmentSupport = (doc.getObject("XY_Plane014"), [""])
sketch22.MapMode = "FlatFace"
sketch22.addGeometry(Part.LineSegment(V(-260, -90, 0), V(-260, -145, 0)), False)
sketch22.addGeometry(Part.LineSegment(V(-260, -145, 0), V(-206, -145, 0)), False)
sketch22.addGeometry(Part.LineSegment(V(-206, -145, 0), V(-206, -90, 0)), False)
sketch22.addGeometry(Part.LineSegment(V(-206, -90, 0), V(-260, -90, 0)), False)
sketch22.addConstraint(Sketcher.Constraint("Coincident", 0, 2, 1, 1))
sketch22.addConstraint(Sketcher.Constraint("Coincident", 1, 2, 2, 1))
sketch22.addConstraint(Sketcher.Constraint("Coincident", 2, 2, 3, 1))
sketch22.addConstraint(Sketcher.Constraint("Coincident", 3, 2, 0, 1))
sketch22.addConstraint(Sketcher.Constraint("Vertical", 0))
sketch22.addConstraint(Sketcher.Constraint("Horizontal", 1))
sketch22.addConstraint(Sketcher.Constraint("Vertical", 2))
sketch22.addConstraint(Sketcher.Constraint("Horizontal", 3))
sketch22.addConstraint(Sketcher.Constraint("DistanceX", 1, 1, 1, 2, 54.0))
sketch22.addConstraint(Sketcher.Constraint("DistanceY", 0, 2, 0, 1, 55.0))
sketch22.addConstraint(Sketcher.Constraint("DistanceY", 0, 2, -1, 1, 145.48865))
sketch22.addConstraint(Sketcher.Constraint("DistanceX", 0, 2, -1, 1, 259.822696))
pad22 = body15.newObject("PartDesign::Pad", "Pad021")
pad22.Profile = sketch22
pad22.Length = 50

# Sketch on XY plane
sketch23 = body15.newObject("Sketcher::SketchObject", "Sketch022")
sketch23.AttachmentSupport = (doc.getObject("XY_Plane014"), [""])
sketch23.MapMode = "FlatFace"
sketch23.AttachmentOffset = App.Placement(V(0, 0, 50), App.Rotation())
sketch23.addGeometry(Part.LineSegment(V(-260, -140, 0), V(-260, -145, 0)), False)
sketch23.addGeometry(Part.LineSegment(V(-260, -145, 0), V(-206, -145, 0)), False)
sketch23.addGeometry(Part.LineSegment(V(-206, -145, 0), V(-206, -140, 0)), False)
sketch23.addGeometry(Part.LineSegment(V(-206, -140, 0), V(-260, -140, 0)), False)
sketch23.addConstraint(Sketcher.Constraint("Coincident", 0, 2, 1, 1))
sketch23.addConstraint(Sketcher.Constraint("Coincident", 1, 2, 2, 1))
sketch23.addConstraint(Sketcher.Constraint("Coincident", 2, 2, 3, 1))
sketch23.addConstraint(Sketcher.Constraint("Coincident", 3, 2, 0, 1))
sketch23.addConstraint(Sketcher.Constraint("Vertical", 0))
sketch23.addConstraint(Sketcher.Constraint("Horizontal", 1))
sketch23.addConstraint(Sketcher.Constraint("Vertical", 2))
sketch23.addConstraint(Sketcher.Constraint("Horizontal", 3))
sketch23.addConstraint(Sketcher.Constraint("DistanceX", 1, 1, 1, 2, 54.0))
sketch23.addConstraint(Sketcher.Constraint("DistanceY", 0, 2, 0, 1, 5.0))
sketch23.addConstraint(Sketcher.Constraint("DistanceY", 0, 2, -1, 1, 145.48865))
sketch23.addConstraint(Sketcher.Constraint("DistanceX", 0, 2, -1, 1, 259.822696))
pad23 = body15.newObject("PartDesign::Pad", "Pad022")
pad23.Profile = sketch23
pad23.Length = 30
body16 = doc.addObject("PartDesign::Body", "Body015")

# Sketch on XY plane
sketch24 = body16.newObject("Sketcher::SketchObject", "Sketch023")
sketch24.AttachmentSupport = (doc.getObject("XY_Plane015"), [""])
sketch24.MapMode = "FlatFace"
sketch24.addGeometry(Part.LineSegment(V(-32, 110, 0), V(-62, 160, 0)), False)
sketch24.addGeometry(Part.LineSegment(V(-62, 160, 0), V(-92, 110, 0)), False)
sketch24.addGeometry(Part.LineSegment(V(-92, 110, 0), V(-32, 110, 0)), False)
sketch24.addConstraint(Sketcher.Constraint("Coincident", 0, 2, 1, 1))
sketch24.addConstraint(Sketcher.Constraint("Coincident", 1, 2, 2, 1))
sketch24.addConstraint(Sketcher.Constraint("Coincident", 2, 2, 0, 1))
sketch24.addConstraint(Sketcher.Constraint("Horizontal", 2))
sketch24.addConstraint(Sketcher.Constraint("Equal", 0, 1))
sketch24.addConstraint(Sketcher.Constraint("DistanceX", 2, 1, 2, 2, 60.0))
sketch24.addConstraint(Sketcher.Constraint("DistanceY", 1, 2, 0, 2, 50.0))
sketch24.addConstraint(Sketcher.Constraint("DistanceX", 0, 2, -1, 1, 62.111737))
sketch24.addConstraint(Sketcher.Constraint("DistanceY", -1, 1, 0, 2, 160.460103))
pad24 = body16.newObject("PartDesign::Pad", "Pad023")
pad24.Profile = sketch24
pad24.Length = 70
doc.recompute()

fillet = body16.newObject("PartDesign::Fillet", "Fillet")
fillet.Base = (pad24, edges_at(pad24, [(-92.112, 110.46, 35), (-32.112, 110.46, 35)]))
fillet.Radius = 3
doc.recompute()

fillet2 = body16.newObject("PartDesign::Fillet", "Fillet001")
fillet2.Base = (fillet, edges_at(fillet, [(-62.112, 160.46, 35)]))
fillet2.Radius = 7
body17 = doc.addObject("PartDesign::Body", "Body016")

# Sketch on XY plane
sketch25 = body17.newObject("Sketcher::SketchObject", "Sketch024")
sketch25.AttachmentSupport = (doc.getObject("XY_Plane016"), [""])
sketch25.MapMode = "FlatFace"
sketch25.addGeometry(Part.LineSegment(V(-416, -33, 0), V(-416, -93, 0)), False)
sketch25.addGeometry(Part.LineSegment(V(-416, -93, 0), V(-274, -93, 0)), False)
sketch25.addGeometry(Part.LineSegment(V(-274, -93, 0), V(-274, -33, 0)), False)
sketch25.addGeometry(Part.LineSegment(V(-274, -33, 0), V(-416, -33, 0)), False)
sketch25.addConstraint(Sketcher.Constraint("Coincident", 0, 2, 1, 1))
sketch25.addConstraint(Sketcher.Constraint("Coincident", 1, 2, 2, 1))
sketch25.addConstraint(Sketcher.Constraint("Coincident", 2, 2, 3, 1))
sketch25.addConstraint(Sketcher.Constraint("Coincident", 3, 2, 0, 1))
sketch25.addConstraint(Sketcher.Constraint("Vertical", 0))
sketch25.addConstraint(Sketcher.Constraint("Horizontal", 1))
sketch25.addConstraint(Sketcher.Constraint("Vertical", 2))
sketch25.addConstraint(Sketcher.Constraint("Horizontal", 3))
sketch25.addConstraint(Sketcher.Constraint("DistanceX", 1, 1, 1, 2, 142.0))
sketch25.addConstraint(Sketcher.Constraint("DistanceY", 0, 2, 0, 1, 60.0))
sketch25.addConstraint(Sketcher.Constraint("DistanceX", 0, 2, -1, 1, 415.903419))
sketch25.addConstraint(Sketcher.Constraint("DistanceY", 0, 2, -1, 1, 92.616439))
pad25 = body17.newObject("PartDesign::Pad", "Pad024")
pad25.Profile = sketch25
pad25.Length = 39

# Sketch on XY plane
sketch26 = body17.newObject("Sketcher::SketchObject", "Sketch025")
sketch26.AttachmentSupport = (doc.getObject("XY_Plane016"), [""])
sketch26.MapMode = "FlatFace"
sketch26.addGeometry(Part.LineSegment(V(-416, 7, 0), V(-416, -33, 0)), False)
sketch26.addGeometry(Part.LineSegment(V(-416, -33, 0), V(-274, -33, 0)), False)
sketch26.addGeometry(Part.LineSegment(V(-274, -33, 0), V(-274, 7, 0)), False)
sketch26.addGeometry(Part.LineSegment(V(-274, 7, 0), V(-416, 7, 0)), False)
sketch26.addConstraint(Sketcher.Constraint("Coincident", 0, 2, 1, 1))
sketch26.addConstraint(Sketcher.Constraint("Coincident", 1, 2, 2, 1))
sketch26.addConstraint(Sketcher.Constraint("Coincident", 2, 2, 3, 1))
sketch26.addConstraint(Sketcher.Constraint("Coincident", 3, 2, 0, 1))
sketch26.addConstraint(Sketcher.Constraint("Vertical", 0))
sketch26.addConstraint(Sketcher.Constraint("Horizontal", 1))
sketch26.addConstraint(Sketcher.Constraint("Vertical", 2))
sketch26.addConstraint(Sketcher.Constraint("Horizontal", 3))
sketch26.addConstraint(Sketcher.Constraint("DistanceX", 1, 1, 1, 2, 142.0))
sketch26.addConstraint(Sketcher.Constraint("DistanceY", 0, 2, 0, 1, 40.0))
sketch26.addConstraint(Sketcher.Constraint("DistanceX", 0, 2, -1, 1, 415.903419))
sketch26.addConstraint(Sketcher.Constraint("DistanceY", 0, 2, -1, 1, 32.616439))
pad26 = body17.newObject("PartDesign::Pad", "Pad025")
pad26.Profile = sketch26
pad26.Length = 87
body18 = doc.addObject("PartDesign::Body", "Body017")

# Sketch on XY plane
sketch27 = body18.newObject("Sketcher::SketchObject", "Sketch026")
sketch27.AttachmentSupport = (doc.getObject("XY_Plane017"), [""])
sketch27.MapMode = "FlatFace"
sketch27.addGeometry(Part.LineSegment(V(-511, 266, 0), V(-511, 78, 0)), False)
sketch27.addGeometry(Part.LineSegment(V(-511, 78, 0), V(-369, 78, 0)), False)
sketch27.addGeometry(Part.LineSegment(V(-369, 78, 0), V(-369, 266, 0)), False)
sketch27.addGeometry(Part.LineSegment(V(-369, 266, 0), V(-511, 266, 0)), False)
sketch27.addConstraint(Sketcher.Constraint("Coincident", 0, 2, 1, 1))
sketch27.addConstraint(Sketcher.Constraint("Coincident", 1, 2, 2, 1))
sketch27.addConstraint(Sketcher.Constraint("Coincident", 2, 2, 3, 1))
sketch27.addConstraint(Sketcher.Constraint("Coincident", 3, 2, 0, 1))
sketch27.addConstraint(Sketcher.Constraint("Vertical", 0))
sketch27.addConstraint(Sketcher.Constraint("Horizontal", 1))
sketch27.addConstraint(Sketcher.Constraint("Vertical", 2))
sketch27.addConstraint(Sketcher.Constraint("Horizontal", 3))
sketch27.addConstraint(Sketcher.Constraint("DistanceX", 1, 1, 1, 2, 142.0))
sketch27.addConstraint(Sketcher.Constraint("DistanceY", 0, 2, 0, 1, 188.0))
sketch27.addConstraint(Sketcher.Constraint("DistanceX", 0, 2, -1, 1, 510.642588))
sketch27.addConstraint(Sketcher.Constraint("DistanceY", -1, 1, 0, 2, 78.298219))
pad27 = body18.newObject("PartDesign::Pad", "Pad026")
pad27.Profile = sketch27
pad27.Length = 39

doc.recompute()
